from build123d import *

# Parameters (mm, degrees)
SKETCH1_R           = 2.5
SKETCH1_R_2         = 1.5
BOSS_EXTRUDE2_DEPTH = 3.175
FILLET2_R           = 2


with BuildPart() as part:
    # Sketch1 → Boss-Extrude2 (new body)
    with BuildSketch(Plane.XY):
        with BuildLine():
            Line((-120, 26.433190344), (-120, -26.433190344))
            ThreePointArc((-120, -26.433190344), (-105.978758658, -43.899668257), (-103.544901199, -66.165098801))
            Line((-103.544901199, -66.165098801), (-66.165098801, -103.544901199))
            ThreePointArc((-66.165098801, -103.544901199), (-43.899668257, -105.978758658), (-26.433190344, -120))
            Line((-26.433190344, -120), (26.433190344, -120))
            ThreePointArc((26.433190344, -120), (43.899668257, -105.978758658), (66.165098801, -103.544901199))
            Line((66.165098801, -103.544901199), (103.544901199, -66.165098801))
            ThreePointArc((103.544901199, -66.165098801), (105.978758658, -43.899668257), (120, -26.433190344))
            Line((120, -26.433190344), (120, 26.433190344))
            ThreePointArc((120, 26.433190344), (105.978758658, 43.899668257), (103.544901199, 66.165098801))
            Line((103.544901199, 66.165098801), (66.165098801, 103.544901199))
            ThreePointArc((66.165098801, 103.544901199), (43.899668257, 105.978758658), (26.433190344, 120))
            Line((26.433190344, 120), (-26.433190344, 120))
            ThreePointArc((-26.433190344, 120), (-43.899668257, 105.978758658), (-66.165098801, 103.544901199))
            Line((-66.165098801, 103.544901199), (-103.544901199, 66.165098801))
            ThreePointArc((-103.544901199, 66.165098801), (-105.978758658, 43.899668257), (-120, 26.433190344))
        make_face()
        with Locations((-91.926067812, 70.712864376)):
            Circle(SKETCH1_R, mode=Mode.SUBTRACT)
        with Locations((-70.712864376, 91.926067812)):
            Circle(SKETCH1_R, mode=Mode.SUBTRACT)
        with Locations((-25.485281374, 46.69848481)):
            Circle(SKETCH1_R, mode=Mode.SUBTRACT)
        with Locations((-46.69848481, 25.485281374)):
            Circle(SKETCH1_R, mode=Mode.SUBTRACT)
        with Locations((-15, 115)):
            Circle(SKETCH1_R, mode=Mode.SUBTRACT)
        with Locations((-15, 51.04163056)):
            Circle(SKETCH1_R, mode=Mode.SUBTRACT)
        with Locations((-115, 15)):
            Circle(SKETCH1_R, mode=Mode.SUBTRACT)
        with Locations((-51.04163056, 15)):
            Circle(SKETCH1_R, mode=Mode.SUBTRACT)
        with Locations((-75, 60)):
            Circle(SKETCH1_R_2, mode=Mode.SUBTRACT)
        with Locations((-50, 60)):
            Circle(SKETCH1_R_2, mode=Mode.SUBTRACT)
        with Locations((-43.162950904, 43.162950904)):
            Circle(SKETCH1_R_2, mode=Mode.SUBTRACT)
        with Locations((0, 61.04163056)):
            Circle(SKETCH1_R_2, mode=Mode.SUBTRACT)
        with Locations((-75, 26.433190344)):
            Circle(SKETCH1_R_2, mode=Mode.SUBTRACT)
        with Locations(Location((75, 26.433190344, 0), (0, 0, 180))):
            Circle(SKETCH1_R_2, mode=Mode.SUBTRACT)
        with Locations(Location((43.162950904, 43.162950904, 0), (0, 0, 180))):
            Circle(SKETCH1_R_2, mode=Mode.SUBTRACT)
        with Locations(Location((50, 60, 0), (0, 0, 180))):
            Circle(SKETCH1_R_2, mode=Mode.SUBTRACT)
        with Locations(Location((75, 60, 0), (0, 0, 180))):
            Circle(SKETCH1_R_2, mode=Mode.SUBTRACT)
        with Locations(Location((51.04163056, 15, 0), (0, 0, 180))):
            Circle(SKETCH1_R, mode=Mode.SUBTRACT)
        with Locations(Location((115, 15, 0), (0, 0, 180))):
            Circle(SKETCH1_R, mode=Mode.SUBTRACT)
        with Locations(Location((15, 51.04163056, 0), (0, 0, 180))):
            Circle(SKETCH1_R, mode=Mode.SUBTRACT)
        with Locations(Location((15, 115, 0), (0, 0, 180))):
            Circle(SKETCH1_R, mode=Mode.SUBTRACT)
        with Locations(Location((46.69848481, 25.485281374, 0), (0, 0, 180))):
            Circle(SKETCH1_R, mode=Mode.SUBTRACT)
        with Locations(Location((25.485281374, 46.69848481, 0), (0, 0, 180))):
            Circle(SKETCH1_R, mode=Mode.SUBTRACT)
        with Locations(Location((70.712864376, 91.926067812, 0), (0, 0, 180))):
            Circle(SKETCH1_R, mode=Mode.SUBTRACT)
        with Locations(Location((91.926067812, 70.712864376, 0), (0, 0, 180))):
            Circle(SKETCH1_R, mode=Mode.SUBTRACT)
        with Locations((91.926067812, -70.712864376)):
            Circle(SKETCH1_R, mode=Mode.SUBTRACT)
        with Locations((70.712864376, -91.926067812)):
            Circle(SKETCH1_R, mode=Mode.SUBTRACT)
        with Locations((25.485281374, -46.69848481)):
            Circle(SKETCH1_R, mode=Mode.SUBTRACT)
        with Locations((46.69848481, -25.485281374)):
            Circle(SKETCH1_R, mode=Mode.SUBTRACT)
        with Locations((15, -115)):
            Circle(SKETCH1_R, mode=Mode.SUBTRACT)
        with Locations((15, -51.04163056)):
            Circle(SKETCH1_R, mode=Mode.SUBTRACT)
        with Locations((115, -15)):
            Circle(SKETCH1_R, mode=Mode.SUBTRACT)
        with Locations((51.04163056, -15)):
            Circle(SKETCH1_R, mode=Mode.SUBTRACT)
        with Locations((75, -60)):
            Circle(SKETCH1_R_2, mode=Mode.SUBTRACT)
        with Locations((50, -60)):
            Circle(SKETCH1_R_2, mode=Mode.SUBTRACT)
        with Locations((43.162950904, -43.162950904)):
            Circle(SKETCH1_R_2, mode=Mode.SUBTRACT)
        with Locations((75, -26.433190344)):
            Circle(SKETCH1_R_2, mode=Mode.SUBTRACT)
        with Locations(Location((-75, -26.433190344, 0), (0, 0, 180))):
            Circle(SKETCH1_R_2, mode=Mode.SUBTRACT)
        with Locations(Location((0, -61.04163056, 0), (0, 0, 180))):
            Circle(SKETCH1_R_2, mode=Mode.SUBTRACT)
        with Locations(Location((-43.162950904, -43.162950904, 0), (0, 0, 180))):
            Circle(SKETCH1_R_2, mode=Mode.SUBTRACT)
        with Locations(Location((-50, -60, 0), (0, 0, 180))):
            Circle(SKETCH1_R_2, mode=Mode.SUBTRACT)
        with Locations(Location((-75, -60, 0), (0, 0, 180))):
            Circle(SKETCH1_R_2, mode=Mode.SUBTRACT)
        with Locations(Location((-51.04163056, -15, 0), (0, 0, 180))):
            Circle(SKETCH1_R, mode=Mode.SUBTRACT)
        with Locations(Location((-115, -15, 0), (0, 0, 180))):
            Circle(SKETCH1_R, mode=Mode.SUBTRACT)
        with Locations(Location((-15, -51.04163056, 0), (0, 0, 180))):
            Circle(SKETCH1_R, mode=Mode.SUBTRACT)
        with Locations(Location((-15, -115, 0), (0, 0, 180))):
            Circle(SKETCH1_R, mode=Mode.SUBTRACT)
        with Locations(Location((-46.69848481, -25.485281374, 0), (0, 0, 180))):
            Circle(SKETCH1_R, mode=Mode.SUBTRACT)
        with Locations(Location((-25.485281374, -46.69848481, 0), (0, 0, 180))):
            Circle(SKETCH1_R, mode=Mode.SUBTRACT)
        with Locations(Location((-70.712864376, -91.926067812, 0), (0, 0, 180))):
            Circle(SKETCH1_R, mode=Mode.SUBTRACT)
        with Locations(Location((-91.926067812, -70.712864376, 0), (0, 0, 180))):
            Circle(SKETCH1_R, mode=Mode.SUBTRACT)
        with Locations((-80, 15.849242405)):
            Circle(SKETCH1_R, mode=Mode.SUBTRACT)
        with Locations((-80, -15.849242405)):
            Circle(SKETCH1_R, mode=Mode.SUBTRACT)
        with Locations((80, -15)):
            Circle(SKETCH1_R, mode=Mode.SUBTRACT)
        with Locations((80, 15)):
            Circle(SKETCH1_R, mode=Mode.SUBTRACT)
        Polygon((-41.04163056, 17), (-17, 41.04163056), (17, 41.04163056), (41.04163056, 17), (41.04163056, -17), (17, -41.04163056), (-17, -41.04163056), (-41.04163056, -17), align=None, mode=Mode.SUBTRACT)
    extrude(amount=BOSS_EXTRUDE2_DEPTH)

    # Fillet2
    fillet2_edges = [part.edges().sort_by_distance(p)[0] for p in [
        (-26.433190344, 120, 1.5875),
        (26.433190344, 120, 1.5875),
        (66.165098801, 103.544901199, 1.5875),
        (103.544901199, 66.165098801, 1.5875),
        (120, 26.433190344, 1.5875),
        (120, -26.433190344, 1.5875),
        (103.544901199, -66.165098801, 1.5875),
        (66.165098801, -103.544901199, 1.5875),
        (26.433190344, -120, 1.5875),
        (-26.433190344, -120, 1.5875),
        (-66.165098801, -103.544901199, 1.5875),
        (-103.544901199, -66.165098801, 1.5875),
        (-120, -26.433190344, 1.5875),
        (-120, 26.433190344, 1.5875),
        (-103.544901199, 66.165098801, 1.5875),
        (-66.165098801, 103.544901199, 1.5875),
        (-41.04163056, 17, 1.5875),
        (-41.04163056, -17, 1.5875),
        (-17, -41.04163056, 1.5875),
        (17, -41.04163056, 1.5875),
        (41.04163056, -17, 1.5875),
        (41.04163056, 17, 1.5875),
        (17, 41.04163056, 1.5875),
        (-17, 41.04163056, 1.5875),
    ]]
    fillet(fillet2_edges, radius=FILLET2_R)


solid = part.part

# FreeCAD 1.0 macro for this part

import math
import FreeCAD as App
import Part
import Sketcher
from FreeCAD import Vector
Q = App.Units.Quantity


def edges_at(feature, points):
    """Names of the edges that pass closest to the given points."""
    edges = feature.Shape.Edges
    near = lambda p: min(range(len(edges)), key=lambda i: edges[i].distToShape(Part.Vertex(*p))[0])
    return sorted({f"Edge{near(p) + 1}" for p in points})

doc = App.newDocument("Part")
body = doc.addObject("PartDesign::Body", "Body")

# Sketch on XY plane
sketch1 = body.newObject("Sketcher::SketchObject", "Sketch")
sketch1.AttachmentSupport = (doc.getObject("XY_Plane"), [""])
sketch1.MapMode = "FlatFace"
sketch1.addGeometry([
    Part.LineSegment(Vector(-120, 26.4, 0), Vector(-120, -26.4, 0)),  # 0
    Part.ArcOfCircle(Part.Circle(Vector(-142.9, -59.2, 0), Vector(0, 0, 1), 40), math.radians(-10), math.radians(55)),  # 1
    Part.LineSegment(Vector(-103.5, -66.2, 0), Vector(-66.2, -103.5, 0)),  # 2
    Part.ArcOfCircle(Part.Circle(Vector(-59.2, -142.9, 0), Vector(0, 0, 1), 40), math.radians(35), math.radians(100)),  # 3
    Part.LineSegment(Vector(-26.4, -120, 0), Vector(26.4, -120, 0)),  # 4
    Part.ArcOfCircle(Part.Circle(Vector(59.2, -142.9, 0), Vector(0, 0, 1), 40), math.radians(80), math.radians(145)),  # 5
    Part.LineSegment(Vector(66.2, -103.5, 0), Vector(103.5, -66.2, 0)),  # 6
    Part.ArcOfCircle(Part.Circle(Vector(142.9, -59.2, 0), Vector(0, 0, 1), 40), math.radians(125), math.radians(190)),  # 7
    Part.LineSegment(Vector(120, -26.4, 0), Vector(120, 26.4, 0)),  # 8
    Part.ArcOfCircle(Part.Circle(Vector(142.9, 59.2, 0), Vector(0, 0, 1), 40), math.radians(170), math.radians(235)),  # 9
    Part.LineSegment(Vector(103.5, 66.2, 0), Vector(66.2, 103.5, 0)),  # 10
    Part.ArcOfCircle(Part.Circle(Vector(59.2, 142.9, 0), Vector(0, 0, 1), 40), math.radians(-145), math.radians(-80)),  # 11
    Part.LineSegment(Vector(26.4, 120, 0), Vector(-26.4, 120, 0)),  # 12
    Part.ArcOfCircle(Part.Circle(Vector(-59.2, 142.9, 0), Vector(0, 0, 1), 40), math.radians(-100), math.radians(-35)),  # 13
    Part.LineSegment(Vector(-66.2, 103.5, 0), Vector(-103.5, 66.2, 0)),  # 14
    Part.ArcOfCircle(Part.Circle(Vector(-142.9, 59.2, 0), Vector(0, 0, 1), 40), math.radians(-55), math.radians(10)),  # 15
    Part.Circle(Vector(-70.7, -91.9, 0), Vector(0, 0, 1), 2.5),  # 16
    Part.Circle(Vector(-91.9, -70.7, 0), Vector(0, 0, 1), 2.5),  # 17
    Part.Circle(Vector(-75, -60, 0), Vector(0, 0, 1), 1.5),  # 18
    Part.Circle(Vector(-15, -115, 0), Vector(0, 0, 1), 2.5),  # 19
    Part.Circle(Vector(-50, -60, 0), Vector(0, 0, 1), 1.5),  # 20
    Part.Circle(Vector(-115, -15, 0), Vector(0, 0, 1), 2.5),  # 21
    Part.Circle(Vector(-75, -26.4, 0), Vector(0, 0, 1), 1.5),  # 22
    Part.Circle(Vector(-80, -15.8, 0), Vector(0, 0, 1), 2.5),  # 23
    Part.Circle(Vector(-43.2, -43.2, 0), Vector(0, 0, 1), 1.5),  # 24
    Part.Circle(Vector(-25.5, -46.7, 0), Vector(0, 0, 1), 2.5),  # 25
    Part.Circle(Vector(-15, -51, 0), Vector(0, 0, 1), 2.5),  # 26
    Part.Circle(Vector(-46.7, -25.5, 0), Vector(0, 0, 1), 2.5),  # 27
    Part.Circle(Vector(-51, -15, 0), Vector(0, 0, 1), 2.5),  # 28
    Part.Circle(Vector(15, -115, 0), Vector(0, 0, 1), 2.5),  # 29
    Part.Circle(Vector(0, -61, 0), Vector(0, 0, 1), 1.5),  # 30
    Part.Circle(Vector(50, -60, 0), Vector(0, 0, 1), 1.5),  # 31
    Part.Circle(Vector(70.7, -91.9, 0), Vector(0, 0, 1), 2.5),  # 32
    Part.Circle(Vector(75, -60, 0), Vector(0, 0, 1), 1.5),  # 33
    Part.Circle(Vector(91.9, -70.7, 0), Vector(0, 0, 1), 2.5),  # 34
    Part.Circle(Vector(15, -51, 0), Vector(0, 0, 1), 2.5),  # 35
    Part.Circle(Vector(25.5, -46.7, 0), Vector(0, 0, 1), 2.5),  # 36
    Part.Circle(Vector(43.2, -43.2, 0), Vector(0, 0, 1), 1.5),  # 37
    Part.Circle(Vector(46.7, -25.5, 0), Vector(0, 0, 1), 2.5),  # 38
    Part.Circle(Vector(51, -15, 0), Vector(0, 0, 1), 2.5),  # 39
    Part.Circle(Vector(75, -26.4, 0), Vector(0, 0, 1), 1.5),  # 40
    Part.Circle(Vector(80, -15, 0), Vector(0, 0, 1), 2.5),  # 41
    Part.Circle(Vector(115, -15, 0), Vector(0, 0, 1), 2.5),  # 42
    Part.Circle(Vector(-115, 15, 0), Vector(0, 0, 1), 2.5),  # 43
    Part.Circle(Vector(-80, 15.8, 0), Vector(0, 0, 1), 2.5),  # 44
    Part.Circle(Vector(-75, 26.4, 0), Vector(0, 0, 1), 1.5),  # 45
    Part.Circle(Vector(-51, 15, 0), Vector(0, 0, 1), 2.5),  # 46
    Part.Circle(Vector(-46.7, 25.5, 0), Vector(0, 0, 1), 2.5),  # 47
    Part.Circle(Vector(-43.2, 43.2, 0), Vector(0, 0, 1), 1.5),  # 48
    Part.Circle(Vector(-25.5, 46.7, 0), Vector(0, 0, 1), 2.5),  # 49
    Part.Circle(Vector(-15, 51, 0), Vector(0, 0, 1), 2.5),  # 50
    Part.Circle(Vector(-91.9, 70.7, 0), Vector(0, 0, 1), 2.5),  # 51
    Part.Circle(Vector(-75, 60, 0), Vector(0, 0, 1), 1.5),  # 52
    Part.Circle(Vector(-70.7, 91.9, 0), Vector(0, 0, 1), 2.5),  # 53
    Part.Circle(Vector(-50, 60, 0), Vector(0, 0, 1), 1.5),  # 54
    Part.Circle(Vector(-15, 115, 0), Vector(0, 0, 1), 2.5),  # 55
    Part.LineSegment(Vector(-41, -17, 0), Vector(-41, 17, 0)),  # 56
    Part.LineSegment(Vector(-41, 17, 0), Vector(-17, 41, 0)),  # 57
    Part.LineSegment(Vector(-17, 41, 0), Vector(17, 41, 0)),  # 58
    Part.LineSegment(Vector(17, 41, 0), Vector(41, 17, 0)),  # 59
    Part.LineSegment(Vector(41, 17, 0), Vector(41, -17, 0)),  # 60
    Part.LineSegment(Vector(41, -17, 0), Vector(17, -41, 0)),  # 61
    Part.LineSegment(Vector(17, -41, 0), Vector(-17, -41, 0)),  # 62
    Part.LineSegment(Vector(-17, -41, 0), Vector(-41, -17, 0)),  # 63
    Part.Circle(Vector(51, 15, 0), Vector(0, 0, 1), 2.5),  # 64
    Part.Circle(Vector(46.7, 25.5, 0), Vector(0, 0, 1), 2.5),  # 65
    Part.Circle(Vector(15, 51, 0), Vector(0, 0, 1), 2.5),  # 66
    Part.Circle(Vector(25.5, 46.7, 0), Vector(0, 0, 1), 2.5),  # 67
    Part.Circle(Vector(43.2, 43.2, 0), Vector(0, 0, 1), 1.5),  # 68
    Part.Circle(Vector(80, 15, 0), Vector(0, 0, 1), 2.5),  # 69
    Part.Circle(Vector(75, 26.4, 0), Vector(0, 0, 1), 1.5),  # 70
    Part.Circle(Vector(115, 15, 0), Vector(0, 0, 1), 2.5),  # 71
    Part.Circle(Vector(0, 61, 0), Vector(0, 0, 1), 1.5),  # 72
    Part.Circle(Vector(50, 60, 0), Vector(0, 0, 1), 1.5),  # 73
    Part.Circle(Vector(15, 115, 0), Vector(0, 0, 1), 2.5),  # 74
    Part.Circle(Vector(75, 60, 0), Vector(0, 0, 1), 1.5),  # 75
    Part.Circle(Vector(91.9, 70.7, 0), Vector(0, 0, 1), 2.5),  # 76
    Part.Circle(Vector(70.7, 91.9, 0), Vector(0, 0, 1), 2.5),  # 77
], False)
sketch1.addConstraint([
    Sketcher.Constraint("Coincident", 0, 2, 1, 2),
    Sketcher.Constraint("Coincident", 1, 1, 2, 1),
    Sketcher.Constraint("Coincident", 2, 2, 3, 2),
    Sketcher.Constraint("Coincident", 3, 1, 4, 1),
    Sketcher.Constraint("Coincident", 4, 2, 5, 2),
    Sketcher.Constraint("Coincident", 5, 1, 6, 1),
    Sketcher.Constraint("Coincident", 6, 2, 7, 2),
    Sketcher.Constraint("Coincident", 7, 1, 8, 1),
    Sketcher.Constraint("Coincident", 8, 2, 9, 2),
    Sketcher.Constraint("Coincident", 9, 1, 10, 1),
    Sketcher.Constraint("Coincident", 10, 2, 11, 2),
    Sketcher.Constraint("Coincident", 11, 1, 12, 1),
    Sketcher.Constraint("Coincident", 12, 2, 13, 2),
    Sketcher.Constraint("Coincident", 13, 1, 14, 1),
    Sketcher.Constraint("Coincident", 14, 2, 15, 2),
    Sketcher.Constraint("Coincident", 15, 1, 0, 1),
    Sketcher.Constraint("Coincident", 56, 2, 57, 1),
    Sketcher.Constraint("Coincident", 57, 2, 58, 1),
    Sketcher.Constraint("Coincident", 58, 2, 59, 1),
    Sketcher.Constraint("Coincident", 59, 2, 60, 1),
    Sketcher.Constraint("Coincident", 60, 2, 61, 1),
    Sketcher.Constraint("Coincident", 61, 2, 62, 1),
    Sketcher.Constraint("Coincident", 62, 2, 63, 1),
    Sketcher.Constraint("Coincident", 63, 2, 56, 1),
    Sketcher.Constraint("Vertical", 0),
    Sketcher.Constraint("Horizontal", 4),
    Sketcher.Constraint("Vertical", 8),
    Sketcher.Constraint("Horizontal", 12),
    Sketcher.Constraint("Vertical", 56),
    Sketcher.Constraint("Horizontal", 58),
    Sketcher.Constraint("Vertical", 60),
    Sketcher.Constraint("Horizontal", 62),
    Sketcher.Constraint("Equal", 1, 3),
    Sketcher.Constraint("Equal", 3, 5),
    Sketcher.Constraint("Equal", 5, 7),
    Sketcher.Constraint("Equal", 7, 9),
    Sketcher.Constraint("Equal", 9, 11),
    Sketcher.Constraint("Equal", 11, 13),
    Sketcher.Constraint("Equal", 13, 15),
    Sketcher.Constraint("Equal", 16, 17),
    Sketcher.Constraint("Equal", 17, 19),
    Sketcher.Constraint("Equal", 18, 20),
    Sketcher.Constraint("Equal", 19, 21),
    Sketcher.Constraint("Equal", 20, 22),
    Sketcher.Constraint("Equal", 21, 23),
    Sketcher.Constraint("Equal", 22, 24),
    Sketcher.Constraint("Equal", 23, 25),
    Sketcher.Constraint("Equal", 25, 26),
    Sketcher.Constraint("Equal", 26, 27),
    Sketcher.Constraint("Equal", 27, 28),
    Sketcher.Constraint("Equal", 28, 29),
    Sketcher.Constraint("Equal", 24, 30),
    Sketcher.Constraint("Equal", 30, 31),
    Sketcher.Constraint("Equal", 29, 32),
    Sketcher.Constraint("Equal", 31, 33),
    Sketcher.Constraint("Equal", 32, 34),
    Sketcher.Constraint("Equal", 34, 35),
    Sketcher.Constraint("Equal", 35, 36),
    Sketcher.Constraint("Equal", 33, 37),
    Sketcher.Constraint("Equal", 36, 38),
    Sketcher.Constraint("Equal", 38, 39),
    Sketcher.Constraint("Equal", 37, 40),
    Sketcher.Constraint("Equal", 39, 41),
    Sketcher.Constraint("Equal", 41, 42),
    Sketcher.Constraint("Equal", 42, 43),
    Sketcher.Constraint("Equal", 43, 44),
    Sketcher.Constraint("Equal", 40, 45),
    Sketcher.Constraint("Equal", 44, 46),
    Sketcher.Constraint("Equal", 46, 47),
    Sketcher.Constraint("Equal", 45, 48),
    Sketcher.Constraint("Equal", 47, 49),
    Sketcher.Constraint("Equal", 49, 50),
    Sketcher.Constraint("Equal", 50, 51),
    Sketcher.Constraint("Equal", 48, 52),
    Sketcher.Constraint("Equal", 51, 53),
    Sketcher.Constraint("Equal", 52, 54),
    Sketcher.Constraint("Equal", 53, 55),
    Sketcher.Constraint("Equal", 55, 64),
    Sketcher.Constraint("Equal", 64, 65),
    Sketcher.Constraint("Equal", 65, 66),
    Sketcher.Constraint("Equal", 66, 67),
    Sketcher.Constraint("Equal", 54, 68),
    Sketcher.Constraint("Equal", 67, 69),
    Sketcher.Constraint("Equal", 68, 70),
    Sketcher.Constraint("Equal", 69, 71),
    Sketcher.Constraint("Equal", 70, 72),
    Sketcher.Constraint("Equal", 72, 73),
    Sketcher.Constraint("Equal", 71, 74),
    Sketcher.Constraint("Equal", 73, 75),
    Sketcher.Constraint("Equal", 74, 76),
    Sketcher.Constraint("Equal", 76, 77),
    Sketcher.Constraint("Symmetric", 1, 3, 9, 3, -1, 1),
    Sketcher.Constraint("Symmetric", 3, 3, 11, 3, -1, 1),
    Sketcher.Constraint("Symmetric", 5, 3, 13, 3, -1, 1),
    Sketcher.Constraint("Symmetric", 7, 3, 15, 3, -1, 1),
    Sketcher.Constraint("Symmetric", 42, 3, 43, 3, -1, 1),
    Sketcher.Constraint("Symmetric", 40, 3, 45, 3, -1, 1),
    Sketcher.Constraint("Symmetric", 39, 3, 46, 3, -1, 1),
    Sketcher.Constraint("Symmetric", 38, 3, 47, 3, -1, 1),
    Sketcher.Constraint("Symmetric", 37, 3, 48, 3, -1, 1),
    Sketcher.Constraint("Symmetric", 36, 3, 49, 3, -1, 1),
    Sketcher.Constraint("Symmetric", 35, 3, 50, 3, -1, 1),
    Sketcher.Constraint("Symmetric", 34, 3, 51, 3, -1, 1),
    Sketcher.Constraint("Symmetric", 33, 3, 52, 3, -1, 1),
    Sketcher.Constraint("Symmetric", 32, 3, 53, 3, -1, 1),
    Sketcher.Constraint("Symmetric", 31, 3, 54, 3, -1, 1),
    Sketcher.Constraint("Symmetric", 29, 3, 55, 3, -1, 1),
    Sketcher.Constraint("Symmetric", 28, 3, 64, 3, -1, 1),
    Sketcher.Constraint("Symmetric", 27, 3, 65, 3, -1, 1),
    Sketcher.Constraint("Symmetric", 26, 3, 66, 3, -1, 1),
    Sketcher.Constraint("Symmetric", 25, 3, 67, 3, -1, 1),
    Sketcher.Constraint("Symmetric", 24, 3, 68, 3, -1, 1),
    Sketcher.Constraint("Symmetric", 22, 3, 70, 3, -1, 1),
    Sketcher.Constraint("Symmetric", 21, 3, 71, 3, -1, 1),
    Sketcher.Constraint("Symmetric", 30, 3, 72, 3, -1, 1),
    Sketcher.Constraint("Symmetric", 20, 3, 73, 3, -1, 1),
    Sketcher.Constraint("Symmetric", 19, 3, 74, 3, -1, 1),
    Sketcher.Constraint("Symmetric", 18, 3, 75, 3, -1, 1),
    Sketcher.Constraint("Symmetric", 17, 3, 76, 3, -1, 1),
    Sketcher.Constraint("Symmetric", 16, 3, 77, 3, -1, 1),
    Sketcher.Constraint("Symmetric", 56, 2, 60, 2, -1, 1),
    Sketcher.Constraint("Symmetric", 57, 2, 61, 2, -1, 1),
    Sketcher.Constraint("Symmetric", 3, 3, 5, 3, -2),
    Sketcher.Constraint("Symmetric", 1, 3, 7, 3, -2),
    Sketcher.Constraint("Symmetric", 19, 3, 29, 3, -2),
    Sketcher.Constraint("Symmetric", 20, 3, 31, 3, -2),
    Sketcher.Constraint("Symmetric", 16, 3, 32, 3, -2),
    Sketcher.Constraint("Symmetric", 18, 3, 33, 3, -2),
    Sketcher.Constraint("Symmetric", 17, 3, 34, 3, -2),
    Sketcher.Constraint("Symmetric", 26, 3, 35, 3, -2),
    Sketcher.Constraint("Symmetric", 25, 3, 36, 3, -2),
    Sketcher.Constraint("Symmetric", 24, 3, 37, 3, -2),
    Sketcher.Constraint("Symmetric", 27, 3, 38, 3, -2),
    Sketcher.Constraint("Symmetric", 28, 3, 39, 3, -2),
    Sketcher.Constraint("Symmetric", 22, 3, 40, 3, -2),
    Sketcher.Constraint("Symmetric", 21, 3, 42, 3, -2),
    Sketcher.Constraint("Symmetric", 23, 3, 44, 3, -1),
    Sketcher.Constraint("Symmetric", 41, 3, 69, 3, -1),
    Sketcher.Constraint("PointOnObject", 30, 3, -2),
    Sketcher.Constraint("Perpendicular", 2, 6),
    Sketcher.Constraint("Perpendicular", 6, 10),
    Sketcher.Constraint("Perpendicular", 10, 14),
    Sketcher.Constraint("Parallel", 14, 57),
    Sketcher.Constraint("Perpendicular", 57, 59),
    Sketcher.Constraint("Perpendicular", 61, 63),
    Sketcher.Constraint("Horizontal", 18, 3, 20, 3),
    Sketcher.Constraint("Horizontal", 21, 3, 28, 3),
    Sketcher.Constraint("Horizontal", 39, 3, 41, 3),
    Sketcher.Constraint("Horizontal", 40, 3, 0, 2),
    Sketcher.Constraint("Horizontal", 2, 2, 5, 1),
    Sketcher.Constraint("Horizontal", 1, 1, 6, 2),
    Sketcher.Constraint("Horizontal", 0, 2, 7, 1),
    Sketcher.Constraint("Horizontal", 10, 2, 13, 1),
    Sketcher.Constraint("Horizontal", 56, 2, 59, 2),
    Sketcher.Constraint("Horizontal", 60, 2, 63, 2),
    Sketcher.Constraint("Vertical", 18, 3, 22, 3),
    Sketcher.Constraint("Vertical", 19, 3, 26, 3),
    Sketcher.Constraint("Vertical", 6, 2, 9, 1),
    Sketcher.Constraint("Vertical", 4, 2, 11, 1),
    Sketcher.Constraint("Equal", 12, 0),
    Sketcher.Constraint("Equal", 62, 56),
    Sketcher.Constraint("Diameter", 16, Q("5 mm")),
    Sketcher.Constraint("Diameter", 18, Q("3 mm")),
    Sketcher.Constraint("Radius", 1, Q("40 mm")),
    Sketcher.Constraint("DistanceX", 58, 1, 58, 2, Q("34 mm")),
    Sketcher.Constraint("Distance", 57, Q("34 mm")),
    Sketcher.Constraint("DistanceX", 18, 3, -1, 1, Q("75 mm")),
    Sketcher.Constraint("DistanceY", 18, 3, -1, 1, Q("60 mm")),
    Sketcher.Constraint("DistanceX", 19, 3, -1, 1, Q("15 mm")),
    Sketcher.Constraint("DistanceY", 19, 3, -1, 1, Q("115 mm")),
    Sketcher.Constraint("DistanceX", 20, 3, -1, 1, Q("50 mm")),
    Sketcher.Constraint("DistanceX", 21, 3, -1, 1, Q("115 mm")),
    Sketcher.Constraint("DistanceY", 21, 3, -1, 1, Q("15 mm")),
    Sketcher.Constraint("DistanceX", 23, 3, -1, 1, Q("80 mm")),
    Sketcher.Constraint("DistanceX", -1, 1, 41, 3, Q("80 mm")),
    Sketcher.Constraint("DistanceX", 0, 2, -1, 1, Q("120 mm")),
    Sketcher.Constraint("DistanceY", 3, 1, -1, 1, Q("120 mm")),
    Sketcher.Constraint("DistanceX", 4, 1, 4, 2, Q("52.866381 mm")),
    Sketcher.Constraint("DistanceX", 1, 1, -1, 1, Q("103.544901 mm")),
    Sketcher.Constraint("DistanceY", 1, 1, -1, 1, Q("66.165099 mm")),
    Sketcher.Constraint("DistanceX", 2, 2, -1, 1, Q("66.165099 mm")),
    Sketcher.Constraint("DistanceX", 24, 3, -1, 1, Q("43.162951 mm")),
    Sketcher.Constraint("DistanceY", 24, 3, -1, 1, Q("43.162951 mm")),
    Sketcher.Constraint("DistanceX", 25, 3, -1, 1, Q("25.485281 mm")),
    Sketcher.Constraint("DistanceY", 26, 3, -1, 1, Q("51.041631 mm")),
    Sketcher.Constraint("DistanceY", 27, 3, -1, 1, Q("25.485281 mm")),
    Sketcher.Constraint("DistanceX", 28, 3, -1, 1, Q("51.041631 mm")),
    Sketcher.Constraint("DistanceY", 30, 3, -1, 1, Q("61.041631 mm")),
    Sketcher.Constraint("DistanceX", 16, 3, -1, 1, Q("70.712864 mm")),
    Sketcher.Constraint("DistanceY", 16, 3, -1, 1, Q("91.926068 mm")),
    Sketcher.Constraint("DistanceX", 17, 3, -1, 1, Q("91.926068 mm")),
    Sketcher.Constraint("DistanceY", 17, 3, -1, 1, Q("70.712864 mm")),
    Sketcher.Constraint("DistanceY", 23, 3, -1, 1, Q("15.849242 mm")),
    Sketcher.Constraint("DistanceY", 25, 3, -1, 1, Q("46.698485 mm")),
    Sketcher.Constraint("DistanceX", 27, 3, -1, 1, Q("46.698485 mm")),
])
pad1 = body.newObject("PartDesign::Pad", "Pad")
pad1.Profile = sketch1
pad1.Length = 3.175
doc.recompute()

fillet = body.newObject("PartDesign::Fillet", "Fillet")
fillet.Base = (pad1, edges_at(pad1, [
    (-26.433, 120, 1.587),
    (26.433, 120, 1.587),
    (66.165, 103.545, 1.587),
    (103.545, 66.165, 1.587),
    (120, 26.433, 1.587),
    (120, -26.433, 1.587),
    (103.545, -66.165, 1.587),
    (66.165, -103.545, 1.587),
    (26.433, -120, 1.587),
    (-26.433, -120, 1.587),
    (-66.165, -103.545, 1.587),
    (-103.545, -66.165, 1.587),
    (-120, -26.433, 1.587),
    (-120, 26.433, 1.587),
    (-103.545, 66.165, 1.587),
    (-66.165, 103.545, 1.587),
    (-41.042, 17, 1.587),
    (-41.042, -17, 1.587),
    (-17, -41.042, 1.587),
    (17, -41.042, 1.587),
    (41.042, -17, 1.587),
    (41.042, 17, 1.587),
    (17, 41.042, 1.587),
    (-17, 41.042, 1.587),
]))
fillet.Radius = 2

doc.recompute()
